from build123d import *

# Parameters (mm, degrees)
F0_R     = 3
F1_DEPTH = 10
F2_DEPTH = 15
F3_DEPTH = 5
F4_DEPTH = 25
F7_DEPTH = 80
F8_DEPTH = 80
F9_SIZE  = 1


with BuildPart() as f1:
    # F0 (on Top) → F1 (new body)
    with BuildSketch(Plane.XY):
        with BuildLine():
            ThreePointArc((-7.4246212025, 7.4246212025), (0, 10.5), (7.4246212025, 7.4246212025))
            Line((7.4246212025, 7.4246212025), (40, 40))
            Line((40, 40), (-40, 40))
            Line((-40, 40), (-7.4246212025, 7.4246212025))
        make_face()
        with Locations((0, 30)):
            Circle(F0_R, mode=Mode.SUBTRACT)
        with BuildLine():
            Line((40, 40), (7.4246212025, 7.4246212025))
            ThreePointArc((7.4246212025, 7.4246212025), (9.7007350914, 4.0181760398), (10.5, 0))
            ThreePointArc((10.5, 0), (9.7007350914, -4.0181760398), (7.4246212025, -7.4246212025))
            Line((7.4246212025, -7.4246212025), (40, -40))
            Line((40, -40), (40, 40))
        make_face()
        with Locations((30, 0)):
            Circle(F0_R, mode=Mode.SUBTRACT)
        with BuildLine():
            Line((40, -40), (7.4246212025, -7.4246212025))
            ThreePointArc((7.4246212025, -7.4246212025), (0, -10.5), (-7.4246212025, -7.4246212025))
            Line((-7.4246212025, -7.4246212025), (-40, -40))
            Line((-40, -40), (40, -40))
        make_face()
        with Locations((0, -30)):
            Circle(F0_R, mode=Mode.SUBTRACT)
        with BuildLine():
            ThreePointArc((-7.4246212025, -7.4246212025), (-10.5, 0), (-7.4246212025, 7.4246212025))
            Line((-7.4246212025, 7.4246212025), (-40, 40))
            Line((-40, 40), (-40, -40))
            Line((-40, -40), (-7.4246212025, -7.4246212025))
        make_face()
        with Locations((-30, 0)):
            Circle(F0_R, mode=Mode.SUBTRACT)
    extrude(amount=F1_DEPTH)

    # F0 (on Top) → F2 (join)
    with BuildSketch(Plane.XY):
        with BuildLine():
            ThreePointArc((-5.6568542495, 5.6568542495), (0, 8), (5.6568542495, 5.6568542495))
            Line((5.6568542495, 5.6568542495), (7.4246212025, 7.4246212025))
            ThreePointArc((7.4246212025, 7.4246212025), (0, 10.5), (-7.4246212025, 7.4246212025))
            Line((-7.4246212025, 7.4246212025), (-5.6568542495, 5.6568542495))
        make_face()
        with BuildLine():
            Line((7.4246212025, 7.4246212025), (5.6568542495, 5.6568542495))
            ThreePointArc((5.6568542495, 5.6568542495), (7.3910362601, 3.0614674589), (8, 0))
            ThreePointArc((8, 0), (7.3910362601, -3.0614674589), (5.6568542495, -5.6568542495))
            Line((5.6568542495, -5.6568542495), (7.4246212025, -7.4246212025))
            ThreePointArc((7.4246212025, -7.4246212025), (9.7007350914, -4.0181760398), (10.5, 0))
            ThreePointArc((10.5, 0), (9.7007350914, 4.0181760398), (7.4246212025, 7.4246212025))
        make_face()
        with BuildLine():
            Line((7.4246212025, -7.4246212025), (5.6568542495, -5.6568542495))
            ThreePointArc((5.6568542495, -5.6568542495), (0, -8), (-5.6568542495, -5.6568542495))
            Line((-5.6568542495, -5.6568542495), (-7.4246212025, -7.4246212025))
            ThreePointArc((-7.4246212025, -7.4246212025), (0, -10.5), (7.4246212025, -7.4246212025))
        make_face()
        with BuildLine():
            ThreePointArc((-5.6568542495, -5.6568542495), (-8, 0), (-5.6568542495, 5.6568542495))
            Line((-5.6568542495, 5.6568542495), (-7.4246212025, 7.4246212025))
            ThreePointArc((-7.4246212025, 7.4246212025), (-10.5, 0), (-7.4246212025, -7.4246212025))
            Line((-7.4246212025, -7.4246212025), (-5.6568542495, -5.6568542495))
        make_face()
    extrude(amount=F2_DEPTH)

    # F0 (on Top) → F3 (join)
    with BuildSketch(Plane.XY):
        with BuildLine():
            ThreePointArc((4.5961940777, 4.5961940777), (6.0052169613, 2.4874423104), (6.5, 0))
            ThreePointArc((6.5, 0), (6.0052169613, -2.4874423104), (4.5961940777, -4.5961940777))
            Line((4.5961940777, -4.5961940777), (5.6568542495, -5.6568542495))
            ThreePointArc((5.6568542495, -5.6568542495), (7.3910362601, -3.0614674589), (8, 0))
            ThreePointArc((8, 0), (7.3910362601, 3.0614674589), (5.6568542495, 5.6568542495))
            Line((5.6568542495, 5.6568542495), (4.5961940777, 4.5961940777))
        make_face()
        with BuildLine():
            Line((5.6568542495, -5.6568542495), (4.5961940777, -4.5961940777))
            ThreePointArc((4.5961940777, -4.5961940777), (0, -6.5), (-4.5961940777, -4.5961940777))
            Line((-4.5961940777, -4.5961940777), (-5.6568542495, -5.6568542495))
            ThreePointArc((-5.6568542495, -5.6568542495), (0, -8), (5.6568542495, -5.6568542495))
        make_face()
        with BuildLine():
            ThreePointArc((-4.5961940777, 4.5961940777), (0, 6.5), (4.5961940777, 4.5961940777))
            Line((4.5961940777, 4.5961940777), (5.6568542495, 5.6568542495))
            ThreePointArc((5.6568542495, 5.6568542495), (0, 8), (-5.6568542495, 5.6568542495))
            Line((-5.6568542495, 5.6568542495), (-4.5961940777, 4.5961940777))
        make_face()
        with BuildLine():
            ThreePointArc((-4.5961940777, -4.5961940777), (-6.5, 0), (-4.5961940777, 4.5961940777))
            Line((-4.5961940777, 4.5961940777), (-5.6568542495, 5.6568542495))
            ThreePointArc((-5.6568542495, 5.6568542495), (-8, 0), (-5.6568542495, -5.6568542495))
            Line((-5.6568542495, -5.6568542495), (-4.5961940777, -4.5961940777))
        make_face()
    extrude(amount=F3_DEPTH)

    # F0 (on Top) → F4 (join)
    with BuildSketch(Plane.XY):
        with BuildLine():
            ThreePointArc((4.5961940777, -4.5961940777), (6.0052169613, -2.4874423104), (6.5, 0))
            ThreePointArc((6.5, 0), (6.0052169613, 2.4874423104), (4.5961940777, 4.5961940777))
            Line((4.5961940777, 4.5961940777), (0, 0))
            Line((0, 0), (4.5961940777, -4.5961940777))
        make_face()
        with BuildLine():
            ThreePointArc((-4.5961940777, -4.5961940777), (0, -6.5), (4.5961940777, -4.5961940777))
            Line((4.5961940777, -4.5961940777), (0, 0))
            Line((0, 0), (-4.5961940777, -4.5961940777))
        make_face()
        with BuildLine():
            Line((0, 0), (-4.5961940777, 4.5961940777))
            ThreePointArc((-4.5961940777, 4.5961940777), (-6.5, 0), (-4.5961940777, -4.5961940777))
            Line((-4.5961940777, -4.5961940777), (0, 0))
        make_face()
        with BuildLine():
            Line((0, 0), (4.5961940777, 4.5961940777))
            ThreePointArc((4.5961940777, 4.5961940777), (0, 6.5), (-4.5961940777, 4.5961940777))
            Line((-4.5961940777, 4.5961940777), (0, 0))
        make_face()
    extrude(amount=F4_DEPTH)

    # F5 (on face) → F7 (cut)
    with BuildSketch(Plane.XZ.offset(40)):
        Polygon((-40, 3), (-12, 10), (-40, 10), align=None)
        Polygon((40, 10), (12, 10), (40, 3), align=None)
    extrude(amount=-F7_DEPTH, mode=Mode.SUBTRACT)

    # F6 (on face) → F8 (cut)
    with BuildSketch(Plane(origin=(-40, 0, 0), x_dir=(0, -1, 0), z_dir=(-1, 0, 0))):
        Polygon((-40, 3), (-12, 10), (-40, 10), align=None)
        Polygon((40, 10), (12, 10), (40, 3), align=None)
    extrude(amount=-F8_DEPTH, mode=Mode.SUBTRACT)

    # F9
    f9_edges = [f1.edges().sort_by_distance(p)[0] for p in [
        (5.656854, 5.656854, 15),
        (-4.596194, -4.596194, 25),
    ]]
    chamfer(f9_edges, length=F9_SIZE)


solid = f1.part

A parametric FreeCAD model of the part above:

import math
import FreeCAD as App
import Part
import Sketcher
from FreeCAD import Vector
Q = App.Units.Quantity


def edges_at(feature, points):
    """Names of the edges that pass closest to the given points."""
    edges = feature.Shape.Edges
    near = lambda p: min(range(len(edges)), key=lambda i: edges[i].distToShape(Part.Vertex(*p))[0])
    return sorted({f"Edge{near(p) + 1}" for p in points})


def add_polygon(sketch, points):
    """Adds a closed chain of lines whose ends are joined by coincident constraints."""
    first, n = sketch.GeometryCount, len(points)
    for a, b in zip(points, points[1:] + points[:1]):
        sketch.addGeometry(Part.LineSegment(App.Vector(*a, 0), App.Vector(*b, 0)), False)
    for i in range(n):
        sketch.addConstraint(Sketcher.Constraint("Coincident", first + i, 2, first + (i + 1) % n, 1))

doc = App.newDocument("Part")
body = doc.addObject("PartDesign::Body", "Body")

sketch1 = body.newObject("Sketcher::SketchObject", "Sketch")
sketch1.AttachmentSupport = (doc.getObject("XY_Plane"), [""])
sketch1.MapMode = "FlatFace"
add_polygon(sketch1, [(40, 40), (-40, 40), (-40, -40), (40, -40)])
sketch1.addGeometry(Part.Circle(Vector(0, -30, 0), Vector(0, 0, 1), 3), False)
sketch1.addGeometry(Part.Circle(Vector(-30, 0, 0), Vector(0, 0, 1), 3), False)
sketch1.addGeometry(Part.ArcOfCircle(Part.Circle(Vector(0, 0, 0), Vector(0, 0, 1), 10.5), math.radians(45), math.radians(135)), False)
sketch1.addGeometry(Part.ArcOfCircle(Part.Circle(Vector(0, 0, 0), Vector(0, 0, 1), 10.5), math.radians(0), math.radians(45)), False)
sketch1.addGeometry(Part.ArcOfCircle(Part.Circle(Vector(0, 0, 0), Vector(0, 0, 1), 10.5), math.radians(-45), math.radians(0)), False)
sketch1.addGeometry(Part.ArcOfCircle(Part.Circle(Vector(0, 0, 0), Vector(0, 0, 1), 10.5), math.radians(-135), math.radians(-45)), False)
sketch1.addGeometry(Part.ArcOfCircle(Part.Circle(Vector(0, 0, 0), Vector(0, 0, 1), 10.5), math.radians(135), math.radians(225)), False)
sketch1.addGeometry(Part.Circle(Vector(30, 0, 0), Vector(0, 0, 1), 3), False)
sketch1.addGeometry(Part.Circle(Vector(0, 30, 0), Vector(0, 0, 1), 3), False)
sketch1.addConstraint([
    Sketcher.Constraint("Tangent", 6, 1, 7, 2),
    Sketcher.Constraint("Tangent", 7, 1, 8, 2),
    Sketcher.Constraint("Tangent", 8, 1, 9, 2),
    Sketcher.Constraint("Tangent", 9, 1, 10, 2),
    Sketcher.Constraint("Tangent", 10, 1, 6, 2),
    Sketcher.Constraint("Horizontal", 0),
    Sketcher.Constraint("Vertical", 1),
    Sketcher.Constraint("Horizontal", 2),
    Sketcher.Constraint("Vertical", 3),
    Sketcher.Constraint("Coincident", 6, 3, -1, 1),
    Sketcher.Constraint("Coincident", 8, 3, -1, 1),
    Sketcher.Constraint("Equal", 4, 5),
    Sketcher.Constraint("Equal", 5, 11),
    Sketcher.Constraint("Equal", 11, 12),
    Sketcher.Constraint("Symmetric", 5, 3, 11, 3, -1, 1),
    Sketcher.Constraint("Symmetric", 4, 3, 12, 3, -1, 1),
    Sketcher.Constraint("Symmetric", 0, 2, 2, 2, -1, 1),
    Sketcher.Constraint("PointOnObject", 4, 3, -2),
    Sketcher.Constraint("PointOnObject", 5, 3, -1),
    Sketcher.Constraint("PointOnObject", 7, 1, -1),
    Sketcher.Constraint("Horizontal", 8, 1, 9, 1),
    Sketcher.Constraint("Horizontal", 6, 1, 10, 1),
    Sketcher.Constraint("Vertical", 6, 1, 8, 1),
    Sketcher.Constraint("Equal", 2, 1),
    Sketcher.Constraint("Diameter", 4, Q("6 mm")),
    Sketcher.Constraint("Radius", 6, Q("10.5 mm")),
    Sketcher.Constraint("DistanceX", 0, 2, 0, 1, Q("80 mm")),
    Sketcher.Constraint("DistanceY", 4, 3, -1, 1, Q("30 mm")),
    Sketcher.Constraint("DistanceX", 5, 3, -1, 1, Q("30 mm")),
    Sketcher.Constraint("DistanceX", -1, 1, 6, 1, Q("7.424621 mm")),
])
pad1 = body.newObject("PartDesign::Pad", "Pad")
pad1.Profile = sketch1
pad1.Length = 10

sketch2 = body.newObject("Sketcher::SketchObject", "Sketch001")
sketch2.AttachmentSupport = (doc.getObject("XY_Plane"), [""])
sketch2.MapMode = "FlatFace"
sketch2.addGeometry([
    Part.ArcOfCircle(Part.Circle(Vector(0, 0, 0), Vector(0, 0, 1), 10.5), math.radians(-135), math.radians(-45)),
    Part.ArcOfCircle(Part.Circle(Vector(0, 0, 0), Vector(0, 0, 1), 10.5), math.radians(-45), math.radians(0)),
    Part.ArcOfCircle(Part.Circle(Vector(0, 0, 0), Vector(0, 0, 1), 10.5), math.radians(0), math.radians(45)),
    Part.ArcOfCircle(Part.Circle(Vector(0, 0, 0), Vector(0, 0, 1), 10.5), math.radians(45), math.radians(135)),
    Part.ArcOfCircle(Part.Circle(Vector(0, 0, 0), Vector(0, 0, 1), 10.5), math.radians(135), math.radians(225)),
    Part.ArcOfCircle(Part.Circle(Vector(0, 0, 0), Vector(0, 0, 1), 8), math.radians(45), math.radians(135)),
    Part.ArcOfCircle(Part.Circle(Vector(0, 0, 0), Vector(0, 0, 1), 8), math.radians(0), math.radians(45)),
    Part.ArcOfCircle(Part.Circle(Vector(0, 0, 0), Vector(0, 0, 1), 8), math.radians(-45), math.radians(0)),
    Part.ArcOfCircle(Part.Circle(Vector(0, 0, 0), Vector(0, 0, 1), 8), math.radians(-135), math.radians(-45)),
    Part.ArcOfCircle(Part.Circle(Vector(0, 0, 0), Vector(0, 0, 1), 8), math.radians(135), math.radians(225)),
], False)
sketch2.addConstraint([
    Sketcher.Constraint("Tangent", 0, 2, 1, 1),
    Sketcher.Constraint("Tangent", 1, 2, 2, 1),
    Sketcher.Constraint("Tangent", 2, 2, 3, 1),
    Sketcher.Constraint("Tangent", 3, 2, 4, 1),
    Sketcher.Constraint("Tangent", 4, 2, 0, 1),
    Sketcher.Constraint("Tangent", 5, 1, 6, 2),
    Sketcher.Constraint("Tangent", 6, 1, 7, 2),
    Sketcher.Constraint("Tangent", 7, 1, 8, 2),
    Sketcher.Constraint("Tangent", 8, 1, 9, 2),
    Sketcher.Constraint("Tangent", 9, 1, 5, 2),
    Sketcher.Constraint("Coincident", 0, 3, -1, 1),
    Sketcher.Constraint("Coincident", 2, 3, -1, 1),
    Sketcher.Constraint("Coincident", 5, 3, -1, 1),
    Sketcher.Constraint("Coincident", 7, 3, -1, 1),
    Sketcher.Constraint("PointOnObject", 1, 2, -1),
    Sketcher.Constraint("PointOnObject", 6, 1, -1),
    Sketcher.Constraint("Horizontal", 2, 2, 3, 2),
    Sketcher.Constraint("Horizontal", 0, 2, 4, 2),
    Sketcher.Constraint("Horizontal", 7, 1, 8, 1),
    Sketcher.Constraint("Horizontal", 5, 1, 9, 1),
    Sketcher.Constraint("Vertical", 0, 2, 2, 2),
    Sketcher.Constraint("Vertical", 5, 1, 7, 1),
    Sketcher.Constraint("Radius", 5, Q("8 mm")),
    Sketcher.Constraint("Radius", 0, Q("10.5 mm")),
    Sketcher.Constraint("DistanceX", -1, 1, 0, 2, Q("7.424621 mm")),
    Sketcher.Constraint("DistanceX", -1, 1, 5, 1, Q("5.656854 mm")),
])
pad2 = body.newObject("PartDesign::Pad", "Pad001")
pad2.Profile = sketch2
pad2.Length = 15

sketch3 = body.newObject("Sketcher::SketchObject", "Sketch002")
sketch3.AttachmentSupport = (doc.getObject("XY_Plane"), [""])
sketch3.MapMode = "FlatFace"
sketch3.addGeometry([
    Part.ArcOfCircle(Part.Circle(Vector(0, 0, 0), Vector(0, 0, 1), 8), math.radians(-135), math.radians(-45)),
    Part.ArcOfCircle(Part.Circle(Vector(0, 0, 0), Vector(0, 0, 1), 8), math.radians(-45), math.radians(0)),
    Part.ArcOfCircle(Part.Circle(Vector(0, 0, 0), Vector(0, 0, 1), 8), math.radians(0), math.radians(45)),
    Part.ArcOfCircle(Part.Circle(Vector(0, 0, 0), Vector(0, 0, 1), 8), math.radians(45), math.radians(135)),
    Part.ArcOfCircle(Part.Circle(Vector(0, 0, 0), Vector(0, 0, 1), 8), math.radians(135), math.radians(225)),
    Part.ArcOfCircle(Part.Circle(Vector(0, 0, 0), Vector(0, 0, 1), 6.5), math.radians(0), math.radians(45)),
    Part.ArcOfCircle(Part.Circle(Vector(0, 0, 0), Vector(0, 0, 1), 6.5), math.radians(-45), math.radians(0)),
    Part.ArcOfCircle(Part.Circle(Vector(0, 0, 0), Vector(0, 0, 1), 6.5), math.radians(-135), math.radians(-45)),
    Part.ArcOfCircle(Part.Circle(Vector(0, 0, 0), Vector(0, 0, 1), 6.5), math.radians(135), math.radians(225)),
    Part.ArcOfCircle(Part.Circle(Vector(0, 0, 0), Vector(0, 0, 1), 6.5), math.radians(45), math.radians(135)),
], False)
sketch3.addConstraint([
    Sketcher.Constraint("Tangent", 0, 2, 1, 1),
    Sketcher.Constraint("Tangent", 1, 2, 2, 1),
    Sketcher.Constraint("Tangent", 2, 2, 3, 1),
    Sketcher.Constraint("Tangent", 3, 2, 4, 1),
    Sketcher.Constraint("Tangent", 4, 2, 0, 1),
    Sketcher.Constraint("Tangent", 5, 1, 6, 2),
    Sketcher.Constraint("Tangent", 6, 1, 7, 2),
    Sketcher.Constraint("Tangent", 7, 1, 8, 2),
    Sketcher.Constraint("Tangent", 8, 1, 9, 2),
    Sketcher.Constraint("Tangent", 9, 1, 5, 2),
    Sketcher.Constraint("Coincident", 0, 3, -1, 1),
    Sketcher.Constraint("Coincident", 2, 3, -1, 1),
    Sketcher.Constraint("Coincident", 5, 3, -1, 1),
    Sketcher.Constraint("Coincident", 7, 3, -1, 1),
    Sketcher.Constraint("PointOnObject", 1, 2, -1),
    Sketcher.Constraint("PointOnObject", 5, 1, -1),
    Sketcher.Constraint("Horizontal", 2, 2, 3, 2),
    Sketcher.Constraint("Horizontal", 0, 2, 4, 2),
    Sketcher.Constraint("Horizontal", 6, 1, 7, 1),
    Sketcher.Constraint("Horizontal", 8, 1, 9, 1),
    Sketcher.Constraint("Vertical", 0, 2, 2, 2),
    Sketcher.Constraint("Vertical", 7, 1, 8, 1),
    Sketcher.Constraint("Radius", 0, Q("8 mm")),
    Sketcher.Constraint("Radius", 5, Q("6.5 mm")),
    Sketcher.Constraint("DistanceX", 6, 1, 0, 2, Q("1.06066 mm")),
    Sketcher.Constraint("DistanceX", -1, 1, 0, 2, Q("5.656854 mm")),
])
pad3 = body.newObject("PartDesign::Pad", "Pad002")
pad3.Profile = sketch3
pad3.Length = 5

sketch4 = body.newObject("Sketcher::SketchObject", "Sketch003")
sketch4.AttachmentSupport = (doc.getObject("XY_Plane"), [""])
sketch4.MapMode = "FlatFace"
sketch4.addGeometry([
    Part.ArcOfCircle(Part.Circle(Vector(0, 0, 0), Vector(0, 0, 1), 6.5), math.radians(-45), math.radians(0)),
    Part.ArcOfCircle(Part.Circle(Vector(0, 0, 0), Vector(0, 0, 1), 6.5), math.radians(0), math.radians(45)),
    Part.ArcOfCircle(Part.Circle(Vector(0, 0, 0), Vector(0, 0, 1), 6.5), math.radians(45), math.radians(135)),
    Part.ArcOfCircle(Part.Circle(Vector(0, 0, 0), Vector(0, 0, 1), 6.5), math.radians(135), math.radians(225)),
    Part.ArcOfCircle(Part.Circle(Vector(0, 0, 0), Vector(0, 0, 1), 6.5), math.radians(-135), math.radians(-45)),
], False)
sketch4.addConstraint([
    Sketcher.Constraint("Tangent", 0, 2, 1, 1),
    Sketcher.Constraint("Tangent", 1, 2, 2, 1),
    Sketcher.Constraint("Tangent", 2, 2, 3, 1),
    Sketcher.Constraint("Tangent", 3, 2, 4, 1),
    Sketcher.Constraint("Tangent", 4, 2, 0, 1),
    Sketcher.Constraint("Coincident", 0, 3, -1, 1),
    Sketcher.Constraint("Coincident", 2, 3, -1, 1),
    Sketcher.Constraint("PointOnObject", 0, 2, -1),
    Sketcher.Constraint("Horizontal", 1, 2, 2, 2),
    Sketcher.Constraint("Horizontal", 3, 2, 4, 2),
    Sketcher.Constraint("Vertical", 2, 2, 3, 2),
    Sketcher.Constraint("Radius", 0, Q("6.5 mm")),
    Sketcher.Constraint("DistanceX", -1, 1, 1, 2, Q("4.596194 mm")),
])
pad4 = body.newObject("PartDesign::Pad", "Pad003")
pad4.Profile = sketch4
pad4.Length = 25

sketch5 = body.newObject("Sketcher::SketchObject", "Sketch004")
sketch5.AttachmentSupport = (doc.getObject("XZ_Plane"), [""])
sketch5.MapMode = "FlatFace"
sketch5.AttachmentOffset = App.Placement(Vector(0, 0, 40), App.Rotation())
add_polygon(sketch5, [(-40, 3), (-12, 10), (-40, 10)])
add_polygon(sketch5, [(40, 10), (12, 10), (40, 3)])
sketch5.addConstraint([
    Sketcher.Constraint("Horizontal", 1),
    Sketcher.Constraint("Vertical", 2),
    Sketcher.Constraint("Horizontal", 3),
    Sketcher.Constraint("Vertical", 5),
    Sketcher.Constraint("Symmetric", 0, 2, 3, 2, -2),
    Sketcher.Constraint("Symmetric", 2, 2, 4, 2, -2),
    Sketcher.Constraint("DistanceX", 1, 2, 1, 1, Q("28 mm")),
    Sketcher.Constraint("DistanceY", 2, 2, 2, 1, Q("7 mm")),
    Sketcher.Constraint("DistanceX", 0, 2, -1, 1, Q("12 mm")),
    Sketcher.Constraint("DistanceY", -1, 1, 0, 2, Q("10 mm")),
])
pocket1 = body.newObject("PartDesign::Pocket", "Pocket")
pocket1.Profile = sketch5
pocket1.Length = 80

sketch6 = body.newObject("Sketcher::SketchObject", "Sketch005")
sketch6.AttachmentSupport = (doc.getObject("YZ_Plane"), [""])
sketch6.MapMode = "FlatFace"
sketch6.AttachmentOffset = App.Placement(Vector(0, 0, -40), App.Rotation())
add_polygon(sketch6, [(40, 3), (12, 10), (40, 10)])
add_polygon(sketch6, [(-40, 10), (-12, 10), (-40, 3)])
sketch6.addConstraint([
    Sketcher.Constraint("Horizontal", 1),
    Sketcher.Constraint("Vertical", 2),
    Sketcher.Constraint("Horizontal", 3),
    Sketcher.Constraint("Vertical", 5),
    Sketcher.Constraint("Symmetric", 0, 2, 3, 2, -2),
    Sketcher.Constraint("Symmetric", 2, 2, 4, 2, -2),
    Sketcher.Constraint("DistanceX", 1, 1, 1, 2, Q("28 mm")),
    Sketcher.Constraint("DistanceY", 2, 2, 2, 1, Q("7 mm")),
    Sketcher.Constraint("DistanceX", -1, 1, 0, 2, Q("12 mm")),
    Sketcher.Constraint("DistanceY", -1, 1, 0, 2, Q("10 mm")),
])
pocket2 = body.newObject("PartDesign::Pocket", "Pocket001")
pocket2.Profile = sketch6
pocket2.Length = 80
pocket2.Reversed = True
doc.recompute()

chamfer = body.newObject("PartDesign::Chamfer", "Chamfer")
chamfer.Base = (pocket2, edges_at(pocket2, [(7.391, 3.061, 15), (-6.5, 0, 25)]))
chamfer.Size = 1

doc.recompute()
